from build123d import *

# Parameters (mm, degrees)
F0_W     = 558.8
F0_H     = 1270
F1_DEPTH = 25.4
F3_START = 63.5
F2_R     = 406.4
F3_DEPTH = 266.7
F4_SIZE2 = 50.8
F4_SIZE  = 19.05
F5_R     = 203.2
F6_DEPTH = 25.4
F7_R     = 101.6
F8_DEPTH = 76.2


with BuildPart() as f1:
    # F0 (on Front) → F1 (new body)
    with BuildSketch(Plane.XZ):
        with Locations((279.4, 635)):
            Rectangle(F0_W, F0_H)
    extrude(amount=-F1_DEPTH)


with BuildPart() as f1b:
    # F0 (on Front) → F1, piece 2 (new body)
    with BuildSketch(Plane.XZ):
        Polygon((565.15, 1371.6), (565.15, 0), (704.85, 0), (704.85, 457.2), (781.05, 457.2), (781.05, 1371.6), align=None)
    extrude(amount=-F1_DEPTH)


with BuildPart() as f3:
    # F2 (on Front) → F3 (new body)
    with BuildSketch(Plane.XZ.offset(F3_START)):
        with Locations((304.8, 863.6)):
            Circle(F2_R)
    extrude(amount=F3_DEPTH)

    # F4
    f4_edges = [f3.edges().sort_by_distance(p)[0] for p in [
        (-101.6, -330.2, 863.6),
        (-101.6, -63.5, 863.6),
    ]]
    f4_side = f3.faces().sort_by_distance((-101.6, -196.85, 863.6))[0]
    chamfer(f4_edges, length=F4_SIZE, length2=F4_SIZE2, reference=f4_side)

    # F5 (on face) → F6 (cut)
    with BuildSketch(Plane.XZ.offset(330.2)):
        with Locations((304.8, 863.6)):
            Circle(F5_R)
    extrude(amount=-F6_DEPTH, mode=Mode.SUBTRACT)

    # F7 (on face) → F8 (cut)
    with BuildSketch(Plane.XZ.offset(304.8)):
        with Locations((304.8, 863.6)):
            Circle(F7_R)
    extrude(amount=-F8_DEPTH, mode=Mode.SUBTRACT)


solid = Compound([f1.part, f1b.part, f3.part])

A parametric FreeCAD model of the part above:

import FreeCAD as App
import Part
import Sketcher
Q = App.Units.Quantity


def edges_at(feature, points):
    """Names of the edges that pass closest to the given points."""
    edges = feature.Shape.Edges
    near = lambda p: min(range(len(edges)), key=lambda i: edges[i].distToShape(Part.Vertex(*p))[0])
    return sorted({f"Edge{near(p) + 1}" for p in points})


def add_polygon(sketch, points):
    """Adds a closed chain of lines whose ends are joined by coincident constraints."""
    first, n = sketch.GeometryCount, len(points)
    for a, b in zip(points, points[1:] + points[:1]):
        sketch.addGeometry(Part.LineSegment(App.Vector(*a, 0), App.Vector(*b, 0)), False)
    for i in range(n):
        sketch.addConstraint(Sketcher.Constraint("Coincident", first + i, 2, first + (i + 1) % n, 1))

doc = App.newDocument("Part")
body = doc.addObject("PartDesign::Body", "Body")

# Sketch on XZ plane
sketch1 = doc.addObject("Sketcher::SketchObject", "Sketch")
body.addObject(sketch1)
sketch1.AttachmentSupport = (doc.XZ_Plane, [""])
sketch1.MapMode = "FlatFace"
add_polygon(sketch1, [(0, 1270), (0, 0), (559, 0), (559, 1270)])  # lines 0-3
sketch1.addConstraint([
    Sketcher.Constraint("Vertical", 0),
    Sketcher.Constraint("Horizontal", 1),
    Sketcher.Constraint("Vertical", 2),
    Sketcher.Constraint("Horizontal", 3),
    Sketcher.Constraint("Coincident", 0, 2, -1, 1),
    Sketcher.Constraint("DistanceX", 1, 1, 1, 2, Q("22 in")),
    Sketcher.Constraint("DistanceY", 0, 2, 0, 1, Q("50 in")),
])
pad1 = doc.addObject("PartDesign::Pad", "Pad")
body.addObject(pad1)
pad1.Profile = sketch1
pad1.Length = Q("1 in")
pad1.Reversed = True
body2 = doc.addObject("PartDesign::Body", "Body001")

# Sketch on XZ plane
sketch2 = doc.addObject("Sketcher::SketchObject", "Sketch001")
body2.addObject(sketch2)
sketch2.AttachmentSupport = (doc.getObject("XZ_Plane001"), [""])
sketch2.MapMode = "FlatFace"
add_polygon(sketch2, [(565, 1372), (565, 0), (705, 0), (705, 457), (781, 457), (781, 1372)])  # lines 0-5
sketch2.addConstraint([
    Sketcher.Constraint("Vertical", 0),
    Sketcher.Constraint("Horizontal", 1),
    Sketcher.Constraint("Vertical", 2),
    Sketcher.Constraint("Horizontal", 3),
    Sketcher.Constraint("Vertical", 4),
    Sketcher.Constraint("Horizontal", 5),
    Sketcher.Constraint("PointOnObject", 0, 2, -1),
    Sketcher.Constraint("DistanceX", 3, 1, 3, 2, Q("3 in")),
    Sketcher.Constraint("DistanceY", 0, 2, 0, 1, Q("54 in")),
    Sketcher.Constraint("DistanceY", 2, 1, 2, 2, Q("18 in")),
    Sketcher.Constraint("DistanceX", 1, 1, 1, 2, Q("5.5 in")),
    Sketcher.Constraint("DistanceX", -1, 1, 0, 2, Q("22.25 in")),
])
pad2 = doc.addObject("PartDesign::Pad", "Pad001")
body2.addObject(pad2)
pad2.Profile = sketch2
pad2.Length = Q("1 in")
pad2.Reversed = True
body3 = doc.addObject("PartDesign::Body", "Body002")

# Sketch on XZ plane
sketch3 = doc.addObject("Sketcher::SketchObject", "Sketch002")
body3.addObject(sketch3)
sketch3.AttachmentSupport = (doc.getObject("XZ_Plane002"), [""])
sketch3.MapMode = "FlatFace"
sketch3.AttachmentOffset = App.Placement(App.Vector(0, 0, 2.5 * 25.4), App.Rotation())
sketch3.addGeometry(Part.Circle(App.Vector(305, 864, 0), App.Vector(0, 0, 1), 406), False)
sketch3.addConstraint([
    Sketcher.Constraint("Diameter", 0, Q("32 in")),
    Sketcher.Constraint("DistanceX", -1, 1, 0, 3, Q("12 in")),
    Sketcher.Constraint("DistanceY", -1, 1, 0, 3, Q("34 in")),
])
pad3 = doc.addObject("PartDesign::Pad", "Pad002")
body3.addObject(pad3)
pad3.Profile = sketch3
pad3.Length = Q("10.5 in")
doc.recompute()

chamfer = doc.addObject("PartDesign::Chamfer", "Chamfer")
body3.addObject(chamfer)
chamfer.Base = (pad3, edges_at(pad3, [(-101.6, -330.2, 863.6), (-101.6, -63.5, 863.6)]))
chamfer.ChamferType = "Two distances"
chamfer.Size = Q("0.75 in")
chamfer.Size2 = Q("2 in")

# Sketch on XZ plane
sketch4 = doc.addObject("Sketcher::SketchObject", "Sketch003")
body3.addObject(sketch4)
sketch4.AttachmentSupport = (doc.getObject("XZ_Plane002"), [""])
sketch4.MapMode = "FlatFace"
sketch4.AttachmentOffset = App.Placement(App.Vector(0, 0, 13 * 25.4), App.Rotation())
sketch4.addGeometry(Part.Circle(App.Vector(305, 864, 0), App.Vector(0, 0, 1), 203), False)
sketch4.addConstraint([
    Sketcher.Constraint("Diameter", 0, Q("16 in")),
    Sketcher.Constraint("DistanceX", -1, 1, 0, 3, Q("12 in")),
    Sketcher.Constraint("DistanceY", -1, 1, 0, 3, Q("34 in")),
])
pocket1 = doc.addObject("PartDesign::Pocket", "Pocket")
body3.addObject(pocket1)
pocket1.Profile = sketch4
pocket1.Length = Q("1 in")

# Sketch on XZ plane
sketch5 = doc.addObject("Sketcher::SketchObject", "Sketch004")
body3.addObject(sketch5)
sketch5.AttachmentSupport = (doc.getObject("XZ_Plane002"), [""])
sketch5.MapMode = "FlatFace"
sketch5.AttachmentOffset = App.Placement(App.Vector(0, 0, 12 * 25.4), App.Rotation())
sketch5.addGeometry(Part.Circle(App.Vector(305, 864, 0), App.Vector(0, 0, 1), 102), False)
sketch5.addConstraint([
    Sketcher.Constraint("Diameter", 0, Q("8 in")),
    Sketcher.Constraint("DistanceX", -1, 1, 0, 3, Q("12 in")),
    Sketcher.Constraint("DistanceY", -1, 1, 0, 3, Q("34 in")),
])
pocket2 = doc.addObject("PartDesign::Pocket", "Pocket001")
body3.addObject(pocket2)
pocket2.Profile = sketch5
pocket2.Length = Q("3 in")

doc.recompute()
